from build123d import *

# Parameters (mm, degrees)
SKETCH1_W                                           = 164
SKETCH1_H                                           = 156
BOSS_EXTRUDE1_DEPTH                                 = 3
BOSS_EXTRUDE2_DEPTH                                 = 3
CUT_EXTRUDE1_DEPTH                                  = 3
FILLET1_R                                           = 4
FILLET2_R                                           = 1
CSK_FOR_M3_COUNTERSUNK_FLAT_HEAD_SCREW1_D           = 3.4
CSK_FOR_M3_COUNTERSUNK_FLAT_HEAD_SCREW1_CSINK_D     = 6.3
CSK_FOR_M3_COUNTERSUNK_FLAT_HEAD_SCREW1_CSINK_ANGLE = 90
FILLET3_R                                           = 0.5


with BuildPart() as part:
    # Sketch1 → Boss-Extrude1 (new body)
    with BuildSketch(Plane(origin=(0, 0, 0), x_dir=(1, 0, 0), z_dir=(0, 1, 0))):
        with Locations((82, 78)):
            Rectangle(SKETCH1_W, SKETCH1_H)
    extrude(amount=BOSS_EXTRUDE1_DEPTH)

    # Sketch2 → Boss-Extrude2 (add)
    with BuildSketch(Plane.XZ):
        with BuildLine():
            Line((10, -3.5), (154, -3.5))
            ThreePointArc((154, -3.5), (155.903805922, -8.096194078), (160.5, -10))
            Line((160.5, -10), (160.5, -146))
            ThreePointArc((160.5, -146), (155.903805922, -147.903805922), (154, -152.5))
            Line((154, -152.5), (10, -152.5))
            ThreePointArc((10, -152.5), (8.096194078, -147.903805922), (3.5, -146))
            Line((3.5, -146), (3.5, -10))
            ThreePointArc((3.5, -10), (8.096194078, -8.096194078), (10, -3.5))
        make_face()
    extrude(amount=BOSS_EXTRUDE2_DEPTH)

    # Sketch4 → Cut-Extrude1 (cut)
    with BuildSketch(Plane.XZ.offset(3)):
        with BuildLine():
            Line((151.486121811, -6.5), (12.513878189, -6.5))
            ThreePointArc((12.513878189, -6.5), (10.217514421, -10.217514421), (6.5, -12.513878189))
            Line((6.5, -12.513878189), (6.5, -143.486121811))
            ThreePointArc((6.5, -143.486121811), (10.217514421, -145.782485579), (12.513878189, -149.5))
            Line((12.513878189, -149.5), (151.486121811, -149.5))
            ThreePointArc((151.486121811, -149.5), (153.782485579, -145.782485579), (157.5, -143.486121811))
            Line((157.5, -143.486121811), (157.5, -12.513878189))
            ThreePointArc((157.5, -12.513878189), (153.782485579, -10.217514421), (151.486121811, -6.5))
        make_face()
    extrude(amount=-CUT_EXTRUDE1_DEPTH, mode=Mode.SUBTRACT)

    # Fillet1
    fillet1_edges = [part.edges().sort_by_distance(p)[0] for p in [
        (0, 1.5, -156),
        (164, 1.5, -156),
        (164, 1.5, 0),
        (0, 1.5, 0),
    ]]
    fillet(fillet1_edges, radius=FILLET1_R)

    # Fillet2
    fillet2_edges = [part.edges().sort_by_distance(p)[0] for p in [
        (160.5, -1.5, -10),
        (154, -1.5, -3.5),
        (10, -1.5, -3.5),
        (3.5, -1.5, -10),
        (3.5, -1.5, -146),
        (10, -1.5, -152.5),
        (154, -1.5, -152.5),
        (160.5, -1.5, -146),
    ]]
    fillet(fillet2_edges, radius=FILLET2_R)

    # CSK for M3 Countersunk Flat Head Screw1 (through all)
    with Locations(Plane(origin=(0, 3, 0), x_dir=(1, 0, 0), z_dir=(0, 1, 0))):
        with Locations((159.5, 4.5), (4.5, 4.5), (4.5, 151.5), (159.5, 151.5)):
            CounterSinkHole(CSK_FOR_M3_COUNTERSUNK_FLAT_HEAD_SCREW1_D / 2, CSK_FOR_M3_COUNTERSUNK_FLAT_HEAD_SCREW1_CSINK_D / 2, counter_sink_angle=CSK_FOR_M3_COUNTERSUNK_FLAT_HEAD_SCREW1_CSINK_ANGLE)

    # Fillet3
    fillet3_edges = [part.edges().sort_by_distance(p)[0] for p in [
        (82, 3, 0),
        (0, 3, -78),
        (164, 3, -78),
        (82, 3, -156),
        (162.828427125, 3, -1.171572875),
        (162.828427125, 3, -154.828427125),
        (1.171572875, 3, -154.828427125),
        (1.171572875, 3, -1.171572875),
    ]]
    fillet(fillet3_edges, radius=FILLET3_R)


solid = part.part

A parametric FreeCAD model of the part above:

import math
import FreeCAD as App
import Part
import Sketcher

V = App.Vector
Q = App.Units.Quantity


def edges_at(feature, points):
    """Names of the edges that pass closest to the given points."""
    edges = feature.Shape.Edges
    near = lambda p: min(range(len(edges)), key=lambda i: edges[i].distToShape(Part.Vertex(*p))[0])
    return sorted({f"Edge{near(p) + 1}" for p in points})


def add_polygon(sketch, points):
    """Adds a closed chain of lines whose ends are joined by coincident constraints."""
    first, n = sketch.GeometryCount, len(points)
    for a, b in zip(points, points[1:] + points[:1]):
        sketch.addGeometry(Part.LineSegment(App.Vector(*a, 0), App.Vector(*b, 0)), False)
    for i in range(n):
        sketch.addConstraint(Sketcher.Constraint("Coincident", first + i, 2, first + (i + 1) % n, 1))

doc = App.newDocument("Part")
body = doc.addObject("PartDesign::Body", "Body")

# Sketch on XZ plane
sketch1 = body.newObject("Sketcher::SketchObject", "Sketch")
sketch1.AttachmentSupport = (doc.getObject("XZ_Plane"), [""])
sketch1.MapMode = "FlatFace"
add_polygon(sketch1, [(0, -156), (0, 0), (164, 0), (164, -156)])  # lines 0-3
sketch1.addConstraint(Sketcher.Constraint("Vertical", 0))
sketch1.addConstraint(Sketcher.Constraint("Horizontal", 1))
sketch1.addConstraint(Sketcher.Constraint("Vertical", 2))
sketch1.addConstraint(Sketcher.Constraint("Horizontal", 3))
sketch1.addConstraint(Sketcher.Constraint("Coincident", 0, 2, -1, 1))
sketch1.addConstraint(Sketcher.Constraint("DistanceX", 1, 1, 1, 2, Q("164 mm")))
sketch1.addConstraint(Sketcher.Constraint("DistanceY", 0, 1, 0, 2, Q("156 mm")))
pad1 = body.newObject("PartDesign::Pad", "Pad")
pad1.Profile = sketch1
pad1.Length = 3
pad1.Reversed = True

# Sketch on XZ plane
sketch2 = body.newObject("Sketcher::SketchObject", "Sketch001")
sketch2.AttachmentSupport = (doc.getObject("XZ_Plane"), [""])
sketch2.MapMode = "FlatFace"
sketch2.addGeometry(Part.LineSegment(V(154, -4, 0), V(10, -4, 0)), False)
sketch2.addGeometry(Part.ArcOfCircle(Part.Circle(V(4, -4, 0), V(0, 0, 1), 6), math.radians(-90), math.radians(0)), False)
sketch2.addGeometry(Part.LineSegment(V(4, -10, 0), V(4, -146, 0)), False)
sketch2.addGeometry(Part.ArcOfCircle(Part.Circle(V(4, -152, 0), V(0, 0, 1), 6), math.radians(0), math.radians(90)), False)
sketch2.addGeometry(Part.LineSegment(V(10, -152, 0), V(154, -152, 0)), False)
sketch2.addGeometry(Part.ArcOfCircle(Part.Circle(V(160, -152, 0), V(0, 0, 1), 6), math.radians(90), math.radians(180)), False)
sketch2.addGeometry(Part.LineSegment(V(160, -146, 0), V(160, -10, 0)), False)
sketch2.addGeometry(Part.ArcOfCircle(Part.Circle(V(160, -4, 0), V(0, 0, 1), 6), math.radians(180), math.radians(270)), False)
sketch2.addConstraint(Sketcher.Constraint("Coincident", 0, 2, 1, 2))
sketch2.addConstraint(Sketcher.Constraint("Coincident", 1, 1, 2, 1))
sketch2.addConstraint(Sketcher.Constraint("Coincident", 2, 2, 3, 2))
sketch2.addConstraint(Sketcher.Constraint("Coincident", 3, 1, 4, 1))
sketch2.addConstraint(Sketcher.Constraint("Coincident", 4, 2, 5, 2))
sketch2.addConstraint(Sketcher.Constraint("Coincident", 5, 1, 6, 1))
sketch2.addConstraint(Sketcher.Constraint("Coincident", 6, 2, 7, 2))
sketch2.addConstraint(Sketcher.Constraint("Coincident", 7, 1, 0, 1))
sketch2.addConstraint(Sketcher.Constraint("Horizontal", 0))
sketch2.addConstraint(Sketcher.Constraint("Vertical", 2))
sketch2.addConstraint(Sketcher.Constraint("Horizontal", 4))
sketch2.addConstraint(Sketcher.Constraint("Vertical", 6))
sketch2.addConstraint(Sketcher.Constraint("Equal", 1, 3))
sketch2.addConstraint(Sketcher.Constraint("Equal", 3, 5))
sketch2.addConstraint(Sketcher.Constraint("Equal", 5, 7))
sketch2.addConstraint(Sketcher.Constraint("Horizontal", 3, 3, 5, 3))
sketch2.addConstraint(Sketcher.Constraint("Horizontal", 1, 3, 7, 3))
sketch2.addConstraint(Sketcher.Constraint("Horizontal", 7, 3, 0, 2))
sketch2.addConstraint(Sketcher.Constraint("Horizontal", 5, 3, 3, 1))
sketch2.addConstraint(Sketcher.Constraint("Vertical", 1, 3, 3, 3))
sketch2.addConstraint(Sketcher.Constraint("Vertical", 5, 3, 7, 3))
sketch2.addConstraint(Sketcher.Constraint("Vertical", 3, 3, 1, 1))
sketch2.addConstraint(Sketcher.Constraint("Vertical", 7, 3, 5, 1))
sketch2.addConstraint(Sketcher.Constraint("Radius", 1, Q("6.5 mm")))
sketch2.addConstraint(Sketcher.Constraint("DistanceX", 0, 2, 0, 1, Q("144 mm")))
sketch2.addConstraint(Sketcher.Constraint("DistanceY", 2, 2, 2, 1, Q("136 mm")))
sketch2.addConstraint(Sketcher.Constraint("DistanceX", -1, 1, 0, 2, Q("10 mm")))
sketch2.addConstraint(Sketcher.Constraint("DistanceY", 1, 1, -1, 1, Q("10 mm")))
pad2 = body.newObject("PartDesign::Pad", "Pad001")
pad2.Profile = sketch2
pad2.Length = 3

# Sketch on XZ plane
sketch3 = body.newObject("Sketcher::SketchObject", "Sketch002")
sketch3.AttachmentSupport = (doc.getObject("XZ_Plane"), [""])
sketch3.MapMode = "FlatFace"
sketch3.AttachmentOffset = App.Placement(V(0, 0, 3), App.Rotation())
sketch3.addGeometry(Part.LineSegment(V(151, -6, 0), V(13, -6, 0)), False)
sketch3.addGeometry(Part.ArcOfCircle(Part.Circle(V(3, -3, 0), V(0, 0, 1), 10), math.radians(-72), math.radians(-18)), False)
sketch3.addGeometry(Part.LineSegment(V(6, -13, 0), V(6, -143, 0)), False)
sketch3.addGeometry(Part.ArcOfCircle(Part.Circle(V(3, -153, 0), V(0, 0, 1), 10), math.radians(18), math.radians(72)), False)
sketch3.addGeometry(Part.LineSegment(V(13, -150, 0), V(151, -150, 0)), False)
sketch3.addGeometry(Part.ArcOfCircle(Part.Circle(V(161, -153, 0), V(0, 0, 1), 10), math.radians(108), math.radians(162)), False)
sketch3.addGeometry(Part.LineSegment(V(158, -143, 0), V(158, -13, 0)), False)
sketch3.addGeometry(Part.ArcOfCircle(Part.Circle(V(161, -3, 0), V(0, 0, 1), 10), math.radians(-162), math.radians(-108)), False)
sketch3.addConstraint(Sketcher.Constraint("Coincident", 0, 2, 1, 2))
sketch3.addConstraint(Sketcher.Constraint("Coincident", 1, 1, 2, 1))
sketch3.addConstraint(Sketcher.Constraint("Coincident", 2, 2, 3, 2))
sketch3.addConstraint(Sketcher.Constraint("Coincident", 3, 1, 4, 1))
sketch3.addConstraint(Sketcher.Constraint("Coincident", 4, 2, 5, 2))
sketch3.addConstraint(Sketcher.Constraint("Coincident", 5, 1, 6, 1))
sketch3.addConstraint(Sketcher.Constraint("Coincident", 6, 2, 7, 2))
sketch3.addConstraint(Sketcher.Constraint("Coincident", 7, 1, 0, 1))
sketch3.addConstraint(Sketcher.Constraint("Horizontal", 0))
sketch3.addConstraint(Sketcher.Constraint("Vertical", 2))
sketch3.addConstraint(Sketcher.Constraint("Horizontal", 4))
sketch3.addConstraint(Sketcher.Constraint("Vertical", 6))
sketch3.addConstraint(Sketcher.Constraint("Equal", 1, 3))
sketch3.addConstraint(Sketcher.Constraint("Equal", 3, 5))
sketch3.addConstraint(Sketcher.Constraint("Equal", 5, 7))
sketch3.addConstraint(Sketcher.Constraint("Horizontal", 3, 3, 5, 3))
sketch3.addConstraint(Sketcher.Constraint("Horizontal", 1, 3, 7, 3))
sketch3.addConstraint(Sketcher.Constraint("Horizontal", 2, 2, 5, 1))
sketch3.addConstraint(Sketcher.Constraint("Horizontal", 1, 1, 6, 2))
sketch3.addConstraint(Sketcher.Constraint("Vertical", 1, 3, 3, 3))
sketch3.addConstraint(Sketcher.Constraint("Vertical", 0, 2, 3, 1))
sketch3.addConstraint(Sketcher.Constraint("Radius", 1, Q("9.5 mm")))
sketch3.addConstraint(Sketcher.Constraint("DistanceY", 3, 3, 1, 3, Q("149 mm")))
sketch3.addConstraint(Sketcher.Constraint("DistanceX", 3, 3, 5, 3, Q("157 mm")))
sketch3.addConstraint(Sketcher.Constraint("DistanceY", 0, 2, 1, 3, Q("3 mm")))
sketch3.addConstraint(Sketcher.Constraint("DistanceX", 1, 3, 1, 1, Q("3 mm")))
sketch3.addConstraint(Sketcher.Constraint("DistanceX", -1, 1, 1, 3, Q("3.5 mm")))
sketch3.addConstraint(Sketcher.Constraint("DistanceY", 1, 3, -1, 1, Q("3.5 mm")))
pocket1 = body.newObject("PartDesign::Pocket", "Pocket")
pocket1.Profile = sketch3
pocket1.Length = 3
doc.recompute()

fillet = body.newObject("PartDesign::Fillet", "Fillet")
fillet.Base = (pocket1, edges_at(pocket1, [
    (0, 1.5, -156),
    (164, 1.5, -156),
    (164, 1.5, 0),
    (0, 1.5, 0),
]))
fillet.Radius = 4
doc.recompute()

fillet2 = body.newObject("PartDesign::Fillet", "Fillet001")
fillet2.Base = (fillet, edges_at(fillet, [
    (160.5, -1.5, -10),
    (154, -1.5, -3.5),
    (10, -1.5, -3.5),
    (3.5, -1.5, -10),
    (3.5, -1.5, -146),
    (10, -1.5, -152.5),
    (154, -1.5, -152.5),
    (160.5, -1.5, -146),
]))
fillet2.Radius = 1

# Sketch on XZ plane
sketch4 = body.newObject("Sketcher::SketchObject", "Sketch003")
sketch4.AttachmentSupport = (doc.getObject("XZ_Plane"), [""])
sketch4.MapMode = "FlatFace"
sketch4.AttachmentOffset = App.Placement(V(0, 0, -3), App.Rotation())
sketch4.addGeometry(Part.Circle(V(159.5, -4.5, 0), V(0, 0, 1), 1.7), False)
sketch4.addGeometry(Part.Circle(V(4.5, -4.5, 0), V(0, 0, 1), 1.7), False)
sketch4.addGeometry(Part.Circle(V(4.5, -151.5, 0), V(0, 0, 1), 1.7), False)
sketch4.addGeometry(Part.Circle(V(159.5, -151.5, 0), V(0, 0, 1), 1.7), False)
sketch4.addConstraint(Sketcher.Constraint("Equal", 0, 1))
sketch4.addConstraint(Sketcher.Constraint("Equal", 1, 2))
sketch4.addConstraint(Sketcher.Constraint("Equal", 2, 3))
sketch4.addConstraint(Sketcher.Constraint("Horizontal", 0, 3, 1, 3))
sketch4.addConstraint(Sketcher.Constraint("Horizontal", 2, 3, 3, 3))
sketch4.addConstraint(Sketcher.Constraint("Vertical", 1, 3, 2, 3))
sketch4.addConstraint(Sketcher.Constraint("Vertical", 0, 3, 3, 3))
sketch4.addConstraint(Sketcher.Constraint("Diameter", 0, Q("3.4 mm")))
sketch4.addConstraint(Sketcher.Constraint("DistanceX", 1, 3, 0, 3, Q("155 mm")))
sketch4.addConstraint(Sketcher.Constraint("DistanceY", 2, 3, 1, 3, Q("147 mm")))
sketch4.addConstraint(Sketcher.Constraint("DistanceX", -1, 1, 0, 3, Q("159.5 mm")))
sketch4.addConstraint(Sketcher.Constraint("DistanceY", 0, 3, -1, 1, Q("4.5 mm")))
doc.recompute()
hole = body.newObject("PartDesign::Hole", "Hole")
hole.Profile = sketch4
hole.ThreadType = "None"
hole.Diameter = 3.4
hole.DepthType = "ThroughAll"
hole.HoleCutType = "Countersink"
hole.HoleCutDiameter = 6.3
hole.HoleCutCountersinkAngle = 90
hole.Reversed = True
doc.recompute()

fillet3 = body.newObject("PartDesign::Fillet", "Fillet002")
fillet3.Base = (hole, edges_at(hole, [
    (82, 3, 0),
    (0, 3, -78),
    (164, 3, -78),
    (82, 3, -156),
    (162.828, 3, -1.172),
    (162.828, 3, -154.828),
    (1.172, 3, -154.828),
    (1.172, 3, -1.172),
]))
fillet3.Radius = 0.5

doc.recompute()
